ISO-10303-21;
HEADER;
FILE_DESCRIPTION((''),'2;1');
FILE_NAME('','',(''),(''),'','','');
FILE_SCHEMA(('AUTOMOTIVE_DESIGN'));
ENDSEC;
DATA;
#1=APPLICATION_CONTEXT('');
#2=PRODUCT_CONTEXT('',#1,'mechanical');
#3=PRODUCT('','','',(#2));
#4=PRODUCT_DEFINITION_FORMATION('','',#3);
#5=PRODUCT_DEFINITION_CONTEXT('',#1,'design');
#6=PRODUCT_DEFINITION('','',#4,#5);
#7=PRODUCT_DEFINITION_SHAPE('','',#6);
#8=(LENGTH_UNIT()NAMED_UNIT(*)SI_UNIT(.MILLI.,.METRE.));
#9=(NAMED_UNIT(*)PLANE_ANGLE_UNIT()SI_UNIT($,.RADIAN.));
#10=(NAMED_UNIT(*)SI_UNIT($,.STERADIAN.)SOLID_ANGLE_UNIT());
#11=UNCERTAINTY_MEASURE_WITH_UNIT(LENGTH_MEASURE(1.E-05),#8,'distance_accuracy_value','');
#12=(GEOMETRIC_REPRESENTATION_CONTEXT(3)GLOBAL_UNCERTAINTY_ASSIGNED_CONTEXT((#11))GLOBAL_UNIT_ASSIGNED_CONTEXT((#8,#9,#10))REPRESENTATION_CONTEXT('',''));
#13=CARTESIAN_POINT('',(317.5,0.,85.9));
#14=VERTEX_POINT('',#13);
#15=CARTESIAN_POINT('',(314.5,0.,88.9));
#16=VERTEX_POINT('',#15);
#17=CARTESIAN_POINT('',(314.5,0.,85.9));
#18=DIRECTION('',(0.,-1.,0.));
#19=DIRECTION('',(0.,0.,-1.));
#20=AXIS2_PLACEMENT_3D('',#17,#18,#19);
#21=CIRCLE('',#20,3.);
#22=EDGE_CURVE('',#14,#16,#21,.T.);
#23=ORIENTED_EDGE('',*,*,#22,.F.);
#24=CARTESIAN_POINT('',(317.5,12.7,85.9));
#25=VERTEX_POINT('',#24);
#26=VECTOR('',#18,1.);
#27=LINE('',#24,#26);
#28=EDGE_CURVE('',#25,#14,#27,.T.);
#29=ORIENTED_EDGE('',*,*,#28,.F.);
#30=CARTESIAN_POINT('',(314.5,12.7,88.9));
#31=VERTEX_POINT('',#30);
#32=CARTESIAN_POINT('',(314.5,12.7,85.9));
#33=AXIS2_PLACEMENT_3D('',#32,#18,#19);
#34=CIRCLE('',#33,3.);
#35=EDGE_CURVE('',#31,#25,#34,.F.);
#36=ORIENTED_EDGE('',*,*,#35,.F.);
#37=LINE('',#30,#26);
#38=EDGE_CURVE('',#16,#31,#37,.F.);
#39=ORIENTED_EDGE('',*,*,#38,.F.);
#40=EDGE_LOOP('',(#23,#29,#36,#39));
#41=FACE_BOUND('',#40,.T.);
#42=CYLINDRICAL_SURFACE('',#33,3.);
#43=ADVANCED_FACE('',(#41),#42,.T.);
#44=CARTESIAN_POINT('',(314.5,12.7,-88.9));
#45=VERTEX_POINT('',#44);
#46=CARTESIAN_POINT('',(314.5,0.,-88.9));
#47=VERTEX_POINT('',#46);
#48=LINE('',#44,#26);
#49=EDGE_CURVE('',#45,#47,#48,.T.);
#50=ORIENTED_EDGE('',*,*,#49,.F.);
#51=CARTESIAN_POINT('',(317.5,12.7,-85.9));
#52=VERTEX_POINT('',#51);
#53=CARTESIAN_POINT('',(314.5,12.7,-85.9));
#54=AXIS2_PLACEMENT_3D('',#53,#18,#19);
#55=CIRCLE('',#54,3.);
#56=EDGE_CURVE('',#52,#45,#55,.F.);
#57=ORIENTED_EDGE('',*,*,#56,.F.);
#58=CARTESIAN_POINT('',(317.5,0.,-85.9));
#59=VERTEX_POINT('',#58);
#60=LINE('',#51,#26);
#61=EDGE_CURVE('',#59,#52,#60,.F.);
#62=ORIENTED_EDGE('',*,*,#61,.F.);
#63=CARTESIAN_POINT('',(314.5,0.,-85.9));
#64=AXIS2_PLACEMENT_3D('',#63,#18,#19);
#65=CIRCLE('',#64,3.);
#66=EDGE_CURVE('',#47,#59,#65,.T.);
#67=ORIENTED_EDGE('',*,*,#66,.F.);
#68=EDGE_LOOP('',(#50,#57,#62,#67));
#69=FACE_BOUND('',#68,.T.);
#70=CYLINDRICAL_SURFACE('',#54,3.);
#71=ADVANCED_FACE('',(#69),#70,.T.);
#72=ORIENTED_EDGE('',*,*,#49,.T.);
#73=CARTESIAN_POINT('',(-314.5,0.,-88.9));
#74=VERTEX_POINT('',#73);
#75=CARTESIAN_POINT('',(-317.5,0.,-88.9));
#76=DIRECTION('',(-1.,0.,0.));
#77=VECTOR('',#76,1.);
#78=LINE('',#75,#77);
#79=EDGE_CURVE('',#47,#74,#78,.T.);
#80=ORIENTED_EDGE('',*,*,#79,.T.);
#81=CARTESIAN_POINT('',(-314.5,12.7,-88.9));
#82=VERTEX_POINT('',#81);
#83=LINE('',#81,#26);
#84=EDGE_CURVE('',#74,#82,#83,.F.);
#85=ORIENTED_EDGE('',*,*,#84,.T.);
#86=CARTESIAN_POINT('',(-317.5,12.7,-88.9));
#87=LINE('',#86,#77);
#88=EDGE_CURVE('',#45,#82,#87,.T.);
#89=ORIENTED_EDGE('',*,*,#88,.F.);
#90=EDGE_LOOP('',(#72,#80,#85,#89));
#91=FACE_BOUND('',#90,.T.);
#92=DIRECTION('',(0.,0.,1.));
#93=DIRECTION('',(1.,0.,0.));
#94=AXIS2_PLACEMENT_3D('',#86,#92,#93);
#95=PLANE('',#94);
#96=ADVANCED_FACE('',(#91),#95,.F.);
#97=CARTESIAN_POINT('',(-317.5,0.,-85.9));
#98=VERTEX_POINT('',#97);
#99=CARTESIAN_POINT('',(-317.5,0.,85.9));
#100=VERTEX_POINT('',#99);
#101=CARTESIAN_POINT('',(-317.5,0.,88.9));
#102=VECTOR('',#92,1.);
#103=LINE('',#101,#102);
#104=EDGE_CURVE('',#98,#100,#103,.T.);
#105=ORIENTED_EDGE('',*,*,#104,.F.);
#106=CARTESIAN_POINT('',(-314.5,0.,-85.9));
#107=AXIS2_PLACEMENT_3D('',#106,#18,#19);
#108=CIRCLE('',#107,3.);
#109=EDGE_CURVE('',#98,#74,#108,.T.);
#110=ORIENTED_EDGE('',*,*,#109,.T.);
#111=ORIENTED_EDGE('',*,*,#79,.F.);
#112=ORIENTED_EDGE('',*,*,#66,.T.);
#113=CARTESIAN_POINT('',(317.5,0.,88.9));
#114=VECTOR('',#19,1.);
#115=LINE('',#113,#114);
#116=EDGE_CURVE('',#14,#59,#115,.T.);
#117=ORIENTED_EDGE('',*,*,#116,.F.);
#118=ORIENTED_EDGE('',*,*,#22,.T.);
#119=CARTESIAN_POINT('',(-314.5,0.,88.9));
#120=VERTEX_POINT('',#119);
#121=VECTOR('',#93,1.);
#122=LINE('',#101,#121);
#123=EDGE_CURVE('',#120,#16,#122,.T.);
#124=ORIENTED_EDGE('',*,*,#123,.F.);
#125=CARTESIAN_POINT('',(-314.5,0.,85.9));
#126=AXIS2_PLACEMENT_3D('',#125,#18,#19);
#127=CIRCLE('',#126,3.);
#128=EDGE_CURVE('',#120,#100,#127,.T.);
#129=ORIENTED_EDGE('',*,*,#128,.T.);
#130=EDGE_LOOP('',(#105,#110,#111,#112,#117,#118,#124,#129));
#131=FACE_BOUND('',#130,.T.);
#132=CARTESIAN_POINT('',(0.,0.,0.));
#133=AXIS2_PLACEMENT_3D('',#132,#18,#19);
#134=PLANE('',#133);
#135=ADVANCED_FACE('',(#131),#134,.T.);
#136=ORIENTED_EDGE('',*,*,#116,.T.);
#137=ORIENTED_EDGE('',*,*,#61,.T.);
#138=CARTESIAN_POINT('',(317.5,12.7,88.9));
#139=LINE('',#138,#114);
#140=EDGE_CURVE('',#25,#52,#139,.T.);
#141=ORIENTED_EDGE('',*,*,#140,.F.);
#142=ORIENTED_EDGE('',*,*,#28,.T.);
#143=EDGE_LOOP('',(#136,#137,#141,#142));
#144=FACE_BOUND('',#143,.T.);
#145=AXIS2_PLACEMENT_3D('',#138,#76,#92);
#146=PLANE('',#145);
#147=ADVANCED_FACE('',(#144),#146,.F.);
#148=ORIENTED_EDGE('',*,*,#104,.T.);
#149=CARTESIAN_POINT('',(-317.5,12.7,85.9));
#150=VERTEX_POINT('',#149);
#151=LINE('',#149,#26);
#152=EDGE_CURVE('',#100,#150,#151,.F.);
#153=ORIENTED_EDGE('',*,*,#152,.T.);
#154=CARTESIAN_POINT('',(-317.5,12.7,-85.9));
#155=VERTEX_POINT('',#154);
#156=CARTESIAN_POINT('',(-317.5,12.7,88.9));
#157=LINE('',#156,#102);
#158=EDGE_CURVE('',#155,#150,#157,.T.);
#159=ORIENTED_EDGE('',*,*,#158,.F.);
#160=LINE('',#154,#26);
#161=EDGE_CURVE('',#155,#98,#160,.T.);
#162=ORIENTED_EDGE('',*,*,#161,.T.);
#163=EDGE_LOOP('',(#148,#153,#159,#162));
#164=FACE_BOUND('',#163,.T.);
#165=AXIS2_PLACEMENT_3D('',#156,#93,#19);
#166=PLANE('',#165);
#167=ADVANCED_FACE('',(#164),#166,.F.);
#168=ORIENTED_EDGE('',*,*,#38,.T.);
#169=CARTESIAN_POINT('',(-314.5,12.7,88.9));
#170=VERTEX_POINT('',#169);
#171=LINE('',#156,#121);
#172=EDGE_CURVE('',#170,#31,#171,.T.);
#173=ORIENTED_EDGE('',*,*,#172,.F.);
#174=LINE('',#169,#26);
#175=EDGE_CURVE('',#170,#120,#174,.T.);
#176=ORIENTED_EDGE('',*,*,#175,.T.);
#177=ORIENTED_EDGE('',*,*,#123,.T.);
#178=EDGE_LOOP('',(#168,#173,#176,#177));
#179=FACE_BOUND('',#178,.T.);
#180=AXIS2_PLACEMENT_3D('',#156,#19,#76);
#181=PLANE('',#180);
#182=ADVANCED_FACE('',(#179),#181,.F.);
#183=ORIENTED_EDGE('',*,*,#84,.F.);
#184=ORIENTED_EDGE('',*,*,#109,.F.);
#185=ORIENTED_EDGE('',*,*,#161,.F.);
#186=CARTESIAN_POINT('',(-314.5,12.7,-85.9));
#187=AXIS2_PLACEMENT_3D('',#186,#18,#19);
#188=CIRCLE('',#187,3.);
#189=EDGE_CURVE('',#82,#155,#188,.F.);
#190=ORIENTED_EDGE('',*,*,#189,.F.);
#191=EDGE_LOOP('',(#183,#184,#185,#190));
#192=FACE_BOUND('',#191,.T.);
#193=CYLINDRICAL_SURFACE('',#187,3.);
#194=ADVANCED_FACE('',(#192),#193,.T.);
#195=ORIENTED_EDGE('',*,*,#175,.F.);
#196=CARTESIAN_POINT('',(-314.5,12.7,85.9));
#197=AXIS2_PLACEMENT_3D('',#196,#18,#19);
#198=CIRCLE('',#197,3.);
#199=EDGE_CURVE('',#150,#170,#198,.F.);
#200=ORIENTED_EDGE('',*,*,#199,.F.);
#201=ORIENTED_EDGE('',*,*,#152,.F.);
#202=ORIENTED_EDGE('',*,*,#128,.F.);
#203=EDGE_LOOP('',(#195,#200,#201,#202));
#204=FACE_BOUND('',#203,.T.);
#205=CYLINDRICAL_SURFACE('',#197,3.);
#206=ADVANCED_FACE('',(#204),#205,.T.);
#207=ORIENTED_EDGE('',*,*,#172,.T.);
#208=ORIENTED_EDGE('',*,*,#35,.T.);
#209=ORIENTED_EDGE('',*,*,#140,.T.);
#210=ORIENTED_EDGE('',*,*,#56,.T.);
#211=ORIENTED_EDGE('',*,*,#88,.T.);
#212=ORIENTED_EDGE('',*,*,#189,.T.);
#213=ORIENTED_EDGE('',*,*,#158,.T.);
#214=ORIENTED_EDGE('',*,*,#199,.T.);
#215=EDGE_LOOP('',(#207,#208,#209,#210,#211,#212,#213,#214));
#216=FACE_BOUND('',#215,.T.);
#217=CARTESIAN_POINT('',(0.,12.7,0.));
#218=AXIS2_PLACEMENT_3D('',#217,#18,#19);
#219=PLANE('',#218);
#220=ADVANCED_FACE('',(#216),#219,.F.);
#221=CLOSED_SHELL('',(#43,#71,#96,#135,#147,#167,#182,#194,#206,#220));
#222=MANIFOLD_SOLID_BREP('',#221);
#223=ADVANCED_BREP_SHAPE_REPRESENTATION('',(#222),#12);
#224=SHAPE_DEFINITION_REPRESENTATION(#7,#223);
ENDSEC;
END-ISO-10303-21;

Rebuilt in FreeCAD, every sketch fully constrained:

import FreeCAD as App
import Part
import Sketcher
from FreeCAD import Vector
Q = App.Units.Quantity


def edges_at(feature, points):
    """Names of the edges that pass closest to the given points."""
    edges = feature.Shape.Edges
    near = lambda p: min(range(len(edges)), key=lambda i: edges[i].distToShape(Part.Vertex(*p))[0])
    return sorted({f"Edge{near(p) + 1}" for p in points})


def add_polygon(sketch, points):
    """Adds a closed chain of lines whose ends are joined by coincident constraints."""
    first, n = sketch.GeometryCount, len(points)
    for a, b in zip(points, points[1:] + points[:1]):
        sketch.addGeometry(Part.LineSegment(App.Vector(*a, 0), App.Vector(*b, 0)), False)
    for i in range(n):
        sketch.addConstraint(Sketcher.Constraint("Coincident", first + i, 2, first + (i + 1) % n, 1))

doc = App.newDocument("Part")
params = doc.addObject("Spreadsheet::Sheet", "Params")
for row, (alias, value) in enumerate([
    ("sketch1_width", "25 in"),
    ("sketch1_height", "7 in"),
    ("pad1_length", "0.5 in"),
    ("fillet_radius", "3 mm"),
], start=1):
    params.set(f"A{row}", alias)
    params.set(f"B{row}", "=" + value)
    params.setAlias(f"B{row}", alias)

body = doc.addObject("PartDesign::Body", "Body")

# Sketch on XZ plane
sketch1 = body.newObject("Sketcher::SketchObject", "Sketch")
sketch1.AttachmentSupport = (doc.getObject("XZ_Plane"), [""])
sketch1.MapMode = "FlatFace"
add_polygon(sketch1, [(-317.5, -88.9), (-317.5, 88.9), (317.5, 88.9), (317.5, -88.9)])  # lines 0-3
sketch1.addConstraint(Sketcher.Constraint("Vertical", 0))
sketch1.addConstraint(Sketcher.Constraint("Horizontal", 1))
sketch1.addConstraint(Sketcher.Constraint("Vertical", 2))
sketch1.addConstraint(Sketcher.Constraint("Horizontal", 3))
sketch1.addConstraint(Sketcher.Constraint("Symmetric", 0, 2, 2, 2, -1, 1))
sketch1.addConstraint(Sketcher.Constraint("DistanceX", 1, 1, 1, 2, Q("25 in")))
sketch1.addConstraint(Sketcher.Constraint("DistanceY", 0, 1, 0, 2, Q("7 in")))
sketch1.setExpression("Constraints[9]", "Params.sketch1_width")
sketch1.setExpression("Constraints[10]", "Params.sketch1_height")
pad1 = body.newObject("PartDesign::Pad", "Pad")
pad1.Profile = sketch1
pad1.setExpression("Length", "Params.pad1_length")
pad1.Reversed = True
doc.recompute()

fillet = body.newObject("PartDesign::Fillet", "Fillet")
fillet.Base = (pad1, edges_at(pad1, [
    (317.5, 6.35, 88.9),
    (-317.5, 6.35, 88.9),
    (-317.5, 6.35, -88.9),
    (317.5, 6.35, -88.9),
]))
fillet.setExpression("Radius", "Params.fillet_radius")

doc.recompute()
